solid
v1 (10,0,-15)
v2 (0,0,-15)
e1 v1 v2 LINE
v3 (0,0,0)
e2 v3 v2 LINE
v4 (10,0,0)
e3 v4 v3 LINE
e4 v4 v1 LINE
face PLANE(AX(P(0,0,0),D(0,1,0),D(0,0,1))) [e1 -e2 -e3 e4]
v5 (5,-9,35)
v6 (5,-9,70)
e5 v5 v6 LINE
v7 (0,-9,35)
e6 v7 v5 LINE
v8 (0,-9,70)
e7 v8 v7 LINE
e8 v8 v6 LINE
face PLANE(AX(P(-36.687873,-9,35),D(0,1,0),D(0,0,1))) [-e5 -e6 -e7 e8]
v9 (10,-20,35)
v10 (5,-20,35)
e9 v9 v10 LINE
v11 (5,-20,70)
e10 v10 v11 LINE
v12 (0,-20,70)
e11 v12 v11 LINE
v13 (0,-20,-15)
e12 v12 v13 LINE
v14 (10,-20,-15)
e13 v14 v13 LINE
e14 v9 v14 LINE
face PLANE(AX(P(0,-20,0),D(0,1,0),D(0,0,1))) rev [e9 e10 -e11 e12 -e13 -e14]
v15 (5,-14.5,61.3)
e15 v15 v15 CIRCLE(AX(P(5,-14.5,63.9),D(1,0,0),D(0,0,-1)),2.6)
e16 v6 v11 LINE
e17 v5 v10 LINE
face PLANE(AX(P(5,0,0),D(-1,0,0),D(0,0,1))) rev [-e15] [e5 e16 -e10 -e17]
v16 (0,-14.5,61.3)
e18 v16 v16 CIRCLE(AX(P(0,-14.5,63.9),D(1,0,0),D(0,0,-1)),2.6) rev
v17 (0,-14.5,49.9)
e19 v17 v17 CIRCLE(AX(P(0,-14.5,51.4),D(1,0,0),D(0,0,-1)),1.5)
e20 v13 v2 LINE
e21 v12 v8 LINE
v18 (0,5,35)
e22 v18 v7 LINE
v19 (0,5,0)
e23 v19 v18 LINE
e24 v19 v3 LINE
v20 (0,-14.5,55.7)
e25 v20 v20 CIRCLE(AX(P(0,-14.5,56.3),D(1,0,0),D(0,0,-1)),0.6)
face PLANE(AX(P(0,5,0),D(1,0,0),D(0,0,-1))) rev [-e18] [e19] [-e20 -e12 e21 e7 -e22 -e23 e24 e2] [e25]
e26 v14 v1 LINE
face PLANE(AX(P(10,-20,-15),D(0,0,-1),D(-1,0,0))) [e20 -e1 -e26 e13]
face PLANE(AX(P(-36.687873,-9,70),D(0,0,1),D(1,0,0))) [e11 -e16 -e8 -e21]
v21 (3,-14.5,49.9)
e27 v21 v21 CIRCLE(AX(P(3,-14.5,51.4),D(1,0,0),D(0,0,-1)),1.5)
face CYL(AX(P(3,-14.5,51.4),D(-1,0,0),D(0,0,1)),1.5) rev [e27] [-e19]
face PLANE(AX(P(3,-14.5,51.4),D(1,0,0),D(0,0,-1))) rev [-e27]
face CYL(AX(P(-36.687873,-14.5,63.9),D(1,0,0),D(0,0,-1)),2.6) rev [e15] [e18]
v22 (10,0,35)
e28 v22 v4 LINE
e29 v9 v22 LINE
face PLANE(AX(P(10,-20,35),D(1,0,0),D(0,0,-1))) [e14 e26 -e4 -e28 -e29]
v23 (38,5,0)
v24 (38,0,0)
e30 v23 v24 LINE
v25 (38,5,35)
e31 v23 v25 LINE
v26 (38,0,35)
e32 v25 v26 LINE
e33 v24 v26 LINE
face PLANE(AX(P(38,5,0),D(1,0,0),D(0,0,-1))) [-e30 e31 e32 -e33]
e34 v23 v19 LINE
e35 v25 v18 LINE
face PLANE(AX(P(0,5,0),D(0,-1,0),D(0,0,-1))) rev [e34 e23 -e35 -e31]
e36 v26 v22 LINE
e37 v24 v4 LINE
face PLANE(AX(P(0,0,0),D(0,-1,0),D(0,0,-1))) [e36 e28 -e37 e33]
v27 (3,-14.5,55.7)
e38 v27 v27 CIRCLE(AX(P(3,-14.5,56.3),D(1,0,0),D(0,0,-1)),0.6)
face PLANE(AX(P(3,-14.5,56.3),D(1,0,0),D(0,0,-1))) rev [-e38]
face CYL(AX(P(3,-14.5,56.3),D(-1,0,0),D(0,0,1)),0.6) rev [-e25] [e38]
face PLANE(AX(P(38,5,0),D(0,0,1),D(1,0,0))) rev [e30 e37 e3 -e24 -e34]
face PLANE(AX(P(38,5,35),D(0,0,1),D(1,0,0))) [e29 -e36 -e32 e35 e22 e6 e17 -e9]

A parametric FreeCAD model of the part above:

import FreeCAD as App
import Part
import Sketcher
Q = App.Units.Quantity


def add_polygon(sketch, points):
    """Adds a closed chain of lines whose ends are joined by coincident constraints."""
    first, n = sketch.GeometryCount, len(points)
    for a, b in zip(points, points[1:] + points[:1]):
        sketch.addGeometry(Part.LineSegment(App.Vector(*a, 0), App.Vector(*b, 0)), False)
    for i in range(n):
        sketch.addConstraint(Sketcher.Constraint("Coincident", first + i, 2, first + (i + 1) % n, 1))

doc = App.newDocument("Part")
body = doc.addObject("PartDesign::Body", "Body")

sketch1 = body.newObject("Sketcher::SketchObject", "Sketch")
sketch1.AttachmentSupport = (doc.getObject("XZ_Plane"), [""])
sketch1.MapMode = "FlatFace"
add_polygon(sketch1, [(0, 0), (0, 35), (38, 35), (38, 0)])
sketch1.addConstraint(Sketcher.Constraint("Vertical", 0))
sketch1.addConstraint(Sketcher.Constraint("Horizontal", 1))
sketch1.addConstraint(Sketcher.Constraint("Vertical", 2))
sketch1.addConstraint(Sketcher.Constraint("Horizontal", 3))
sketch1.addConstraint(Sketcher.Constraint("Coincident", 3, 2, -1, 1))
sketch1.addConstraint(Sketcher.Constraint("DistanceX", 1, 1, 1, 2, Q("38 mm")))
sketch1.addConstraint(Sketcher.Constraint("DistanceY", 0, 1, 0, 2, Q("35 mm")))
pad1 = body.newObject("PartDesign::Pad", "Pad")
pad1.Profile = sketch1
pad1.Length = 5
pad1.Reversed = True

sketch2 = body.newObject("Sketcher::SketchObject", "Sketch001")
sketch2.AttachmentSupport = (doc.getObject("XZ_Plane"), [""])
sketch2.MapMode = "FlatFace"
add_polygon(sketch2, [(0, -15), (0, 35), (10, 35), (10, -15)])
sketch2.addConstraint(Sketcher.Constraint("Vertical", 0))
sketch2.addConstraint(Sketcher.Constraint("Horizontal", 1))
sketch2.addConstraint(Sketcher.Constraint("Vertical", 2))
sketch2.addConstraint(Sketcher.Constraint("Horizontal", 3))
sketch2.addConstraint(Sketcher.Constraint("PointOnObject", 0, 2, -2))
sketch2.addConstraint(Sketcher.Constraint("DistanceX", 1, 1, 1, 2, Q("10 mm")))
sketch2.addConstraint(Sketcher.Constraint("DistanceY", 0, 1, 0, 2, Q("50 mm")))
sketch2.addConstraint(Sketcher.Constraint("DistanceY", -1, 1, 0, 2, Q("35 mm")))
pad2 = body.newObject("PartDesign::Pad", "Pad001")
pad2.Profile = sketch2
pad2.Length = 20

sketch3 = body.newObject("Sketcher::SketchObject", "Sketch002")
sketch3.AttachmentSupport = (doc.getObject("YZ_Plane"), [""])
sketch3.MapMode = "FlatFace"
sketch3.AttachmentOffset = App.Placement(App.Vector(0, 0, 5), App.Rotation())
add_polygon(sketch3, [(-9, 70), (-20, 70), (-20, 35), (-9, 35)])
sketch3.addGeometry(Part.Circle(App.Vector(-14.5, 63.9, 0), App.Vector(0, 0, 1), 2.6), False)
sketch3.addConstraint(Sketcher.Constraint("Horizontal", 0))
sketch3.addConstraint(Sketcher.Constraint("Vertical", 1))
sketch3.addConstraint(Sketcher.Constraint("Horizontal", 2))
sketch3.addConstraint(Sketcher.Constraint("Vertical", 3))
sketch3.addConstraint(Sketcher.Constraint("Diameter", 4, Q("5.2 mm")))
sketch3.addConstraint(Sketcher.Constraint("DistanceX", 0, 2, 0, 1, Q("11 mm")))
sketch3.addConstraint(Sketcher.Constraint("DistanceY", 1, 2, 1, 1, Q("35 mm")))
sketch3.addConstraint(Sketcher.Constraint("DistanceX", 0, 2, -1, 1, Q("20 mm")))
sketch3.addConstraint(Sketcher.Constraint("DistanceY", -1, 1, 0, 2, Q("70 mm")))
sketch3.addConstraint(Sketcher.Constraint("DistanceX", 4, 3, -1, 1, Q("14.5 mm")))
sketch3.addConstraint(Sketcher.Constraint("DistanceY", -1, 1, 4, 3, Q("63.9 mm")))
pad3 = body.newObject("PartDesign::Pad", "Pad002")
pad3.Profile = sketch3
pad3.Length = 5
pad3.Reversed = True

sketch4 = body.newObject("Sketcher::SketchObject", "Sketch003")
sketch4.AttachmentSupport = (doc.getObject("YZ_Plane"), [""])
sketch4.MapMode = "FlatFace"
sketch4.addGeometry(Part.Circle(App.Vector(-14.5, 56.3, 0), App.Vector(0, 0, 1), 0.6), False)
sketch4.addGeometry(Part.Circle(App.Vector(-14.5, 51.4, 0), App.Vector(0, 0, 1), 1.5), False)
sketch4.addConstraint(Sketcher.Constraint("Vertical", 0, 3, 1, 3))
sketch4.addConstraint(Sketcher.Constraint("Diameter", 1, Q("3 mm")))
sketch4.addConstraint(Sketcher.Constraint("Diameter", 0, Q("1.2 mm")))
sketch4.addConstraint(Sketcher.Constraint("DistanceX", 0, 3, -1, 1, Q("14.5 mm")))
sketch4.addConstraint(Sketcher.Constraint("DistanceY", -1, 1, 0, 3, Q("56.3 mm")))
sketch4.addConstraint(Sketcher.Constraint("DistanceY", -1, 1, 1, 3, Q("51.4 mm")))
pocket1 = body.newObject("PartDesign::Pocket", "Pocket")
pocket1.Profile = sketch4
pocket1.Length = 3
pocket1.Reversed = True

doc.recompute()
